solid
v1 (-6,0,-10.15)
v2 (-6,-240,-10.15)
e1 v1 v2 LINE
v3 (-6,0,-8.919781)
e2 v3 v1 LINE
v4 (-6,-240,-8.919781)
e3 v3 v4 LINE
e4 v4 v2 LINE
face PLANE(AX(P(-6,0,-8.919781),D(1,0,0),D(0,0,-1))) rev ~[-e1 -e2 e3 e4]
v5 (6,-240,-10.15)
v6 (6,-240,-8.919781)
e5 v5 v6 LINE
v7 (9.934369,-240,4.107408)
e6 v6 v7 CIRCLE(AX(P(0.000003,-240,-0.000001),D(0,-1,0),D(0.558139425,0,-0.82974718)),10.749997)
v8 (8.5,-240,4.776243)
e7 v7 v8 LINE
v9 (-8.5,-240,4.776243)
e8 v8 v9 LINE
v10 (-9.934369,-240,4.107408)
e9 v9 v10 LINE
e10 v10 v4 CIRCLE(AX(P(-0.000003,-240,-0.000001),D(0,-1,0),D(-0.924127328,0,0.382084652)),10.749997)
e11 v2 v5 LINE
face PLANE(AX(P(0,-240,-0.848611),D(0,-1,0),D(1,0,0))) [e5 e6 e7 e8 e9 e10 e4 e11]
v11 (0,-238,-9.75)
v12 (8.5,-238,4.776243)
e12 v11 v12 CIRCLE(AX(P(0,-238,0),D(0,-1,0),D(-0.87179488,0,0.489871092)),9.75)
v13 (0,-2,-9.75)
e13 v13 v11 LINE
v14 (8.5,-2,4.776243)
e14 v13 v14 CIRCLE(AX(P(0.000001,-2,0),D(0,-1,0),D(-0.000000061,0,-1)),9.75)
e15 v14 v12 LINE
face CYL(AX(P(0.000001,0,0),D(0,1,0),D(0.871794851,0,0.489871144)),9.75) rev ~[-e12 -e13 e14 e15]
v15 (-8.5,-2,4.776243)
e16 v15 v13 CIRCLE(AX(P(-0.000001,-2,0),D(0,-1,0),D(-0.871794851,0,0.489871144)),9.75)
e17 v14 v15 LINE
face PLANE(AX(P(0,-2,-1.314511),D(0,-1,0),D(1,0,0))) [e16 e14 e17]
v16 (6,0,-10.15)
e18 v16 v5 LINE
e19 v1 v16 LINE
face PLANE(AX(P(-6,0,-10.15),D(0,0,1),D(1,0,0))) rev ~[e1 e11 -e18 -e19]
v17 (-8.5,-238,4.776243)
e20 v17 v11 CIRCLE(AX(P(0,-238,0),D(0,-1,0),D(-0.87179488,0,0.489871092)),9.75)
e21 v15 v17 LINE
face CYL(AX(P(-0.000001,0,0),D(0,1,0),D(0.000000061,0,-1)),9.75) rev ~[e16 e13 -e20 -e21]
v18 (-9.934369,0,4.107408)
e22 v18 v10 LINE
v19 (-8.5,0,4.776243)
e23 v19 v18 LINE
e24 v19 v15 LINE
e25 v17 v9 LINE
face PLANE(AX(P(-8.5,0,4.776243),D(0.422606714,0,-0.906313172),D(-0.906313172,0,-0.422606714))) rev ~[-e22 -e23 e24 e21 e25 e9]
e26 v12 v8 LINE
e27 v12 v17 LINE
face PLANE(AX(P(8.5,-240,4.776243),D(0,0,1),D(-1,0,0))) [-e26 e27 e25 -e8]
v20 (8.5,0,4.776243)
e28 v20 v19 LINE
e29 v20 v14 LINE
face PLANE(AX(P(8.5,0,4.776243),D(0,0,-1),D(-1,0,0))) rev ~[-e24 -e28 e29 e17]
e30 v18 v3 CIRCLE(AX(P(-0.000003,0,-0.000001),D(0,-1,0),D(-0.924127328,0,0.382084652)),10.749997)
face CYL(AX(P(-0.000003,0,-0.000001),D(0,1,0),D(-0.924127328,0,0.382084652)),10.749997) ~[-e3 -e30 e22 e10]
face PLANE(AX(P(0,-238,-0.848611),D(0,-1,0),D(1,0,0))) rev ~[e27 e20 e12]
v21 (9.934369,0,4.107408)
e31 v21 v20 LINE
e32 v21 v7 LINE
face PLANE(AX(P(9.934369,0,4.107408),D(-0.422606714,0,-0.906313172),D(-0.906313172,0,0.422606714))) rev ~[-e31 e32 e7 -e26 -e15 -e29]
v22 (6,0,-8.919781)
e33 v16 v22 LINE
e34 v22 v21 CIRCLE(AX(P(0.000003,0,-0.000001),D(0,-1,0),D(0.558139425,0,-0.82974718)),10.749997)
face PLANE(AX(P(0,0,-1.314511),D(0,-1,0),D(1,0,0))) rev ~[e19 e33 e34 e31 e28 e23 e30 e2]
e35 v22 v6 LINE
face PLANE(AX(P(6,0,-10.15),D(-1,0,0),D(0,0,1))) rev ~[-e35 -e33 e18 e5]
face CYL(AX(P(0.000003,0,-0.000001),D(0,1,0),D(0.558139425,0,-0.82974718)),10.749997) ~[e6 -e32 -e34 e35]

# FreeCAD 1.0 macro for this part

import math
import FreeCAD as App
import Part
import Sketcher
Q = App.Units.Quantity

doc = App.newDocument("Part")
body = doc.addObject("PartDesign::Body", "Body")

# Sketch on XZ plane
sketch1 = body.newObject("Sketcher::SketchObject", "Sketch")
sketch1.AttachmentSupport = (doc.getObject("XZ_Plane"), [""])
sketch1.MapMode = "FlatFace"
sketch1.addGeometry(Part.ArcOfCircle(Part.Circle(App.Vector(0, 0, 0), App.Vector(0, 0, 1), 9.7), math.radians(151), math.radians(270)), False)
sketch1.addGeometry(Part.LineSegment(App.Vector(-8.5, 4.8, 0), App.Vector(-9.9, 4.1, 0)), False)
sketch1.addGeometry(Part.ArcOfCircle(Part.Circle(App.Vector(0, 0, 0), App.Vector(0, 0, 1), 10.7), math.radians(158), math.radians(236)), False)
sketch1.addGeometry(Part.LineSegment(App.Vector(-6, -8.9, 0), App.Vector(-6, -10.2, 0)), False)
sketch1.addGeometry(Part.LineSegment(App.Vector(-6, -10.2, 0), App.Vector(6, -10.2, 0)), False)
sketch1.addGeometry(Part.LineSegment(App.Vector(6, -10.2, 0), App.Vector(6, -8.9, 0)), False)
sketch1.addGeometry(Part.ArcOfCircle(Part.Circle(App.Vector(0, 0, 0), App.Vector(0, 0, 1), 10.7), math.radians(-56), math.radians(22)), False)
sketch1.addGeometry(Part.LineSegment(App.Vector(9.9, 4.1, 0), App.Vector(8.5, 4.8, 0)), False)
sketch1.addGeometry(Part.ArcOfCircle(Part.Circle(App.Vector(0, 0, 0), App.Vector(0, 0, 1), 9.7), math.radians(-90), math.radians(29)), False)
sketch1.addConstraint(Sketcher.Constraint("Coincident", 0, 1, 1, 1))
sketch1.addConstraint(Sketcher.Constraint("Coincident", 1, 2, 2, 1))
sketch1.addConstraint(Sketcher.Constraint("Coincident", 2, 2, 3, 1))
sketch1.addConstraint(Sketcher.Constraint("Coincident", 3, 2, 4, 1))
sketch1.addConstraint(Sketcher.Constraint("Coincident", 4, 2, 5, 1))
sketch1.addConstraint(Sketcher.Constraint("Coincident", 5, 2, 6, 1))
sketch1.addConstraint(Sketcher.Constraint("Coincident", 6, 2, 7, 1))
sketch1.addConstraint(Sketcher.Constraint("Coincident", 7, 2, 8, 2))
sketch1.addConstraint(Sketcher.Constraint("Tangent", 8, 1, 0, 2))
sketch1.addConstraint(Sketcher.Constraint("Vertical", 3))
sketch1.addConstraint(Sketcher.Constraint("Horizontal", 4))
sketch1.addConstraint(Sketcher.Constraint("Vertical", 5))
sketch1.addConstraint(Sketcher.Constraint("Coincident", 0, 3, -1, 1))
sketch1.addConstraint(Sketcher.Constraint("Coincident", 2, 3, -1, 1))
sketch1.addConstraint(Sketcher.Constraint("Coincident", 6, 3, -1, 1))
sketch1.addConstraint(Sketcher.Constraint("Equal", 2, 6))
sketch1.addConstraint(Sketcher.Constraint("Equal", 0, 8))
sketch1.addConstraint(Sketcher.Constraint("PointOnObject", 8, 1, -2))
sketch1.addConstraint(Sketcher.Constraint("Horizontal", 2, 2, 5, 2))
sketch1.addConstraint(Sketcher.Constraint("Horizontal", 1, 2, 6, 2))
sketch1.addConstraint(Sketcher.Constraint("Horizontal", 0, 1, 7, 2))
sketch1.addConstraint(Sketcher.Constraint("DistanceX", 4, 1, 4, 2, Q("12 mm")))
sketch1.addConstraint(Sketcher.Constraint("Radius", 0, Q("9.75 mm")))
sketch1.addConstraint(Sketcher.Constraint("DistanceX", 0, 1, -1, 1, Q("8.5 mm")))
sketch1.addConstraint(Sketcher.Constraint("DistanceY", 4, 2, 8, 1, Q("0.4 mm")))
sketch1.addConstraint(Sketcher.Constraint("Radius", 2, Q("10.749997 mm")))
sketch1.addConstraint(Sketcher.Constraint("Distance", 1, Q("1.582642 mm")))
pad1 = body.newObject("PartDesign::Pad", "Pad")
pad1.Profile = sketch1
pad1.Length = 240

# Sketch on XZ plane
sketch2 = body.newObject("Sketcher::SketchObject", "Sketch001")
sketch2.AttachmentSupport = (doc.getObject("XZ_Plane"), [""])
sketch2.MapMode = "FlatFace"
sketch2.addGeometry(Part.ArcOfCircle(Part.Circle(App.Vector(0, 0, 0), App.Vector(0, 0, 1), 10), math.radians(151), math.radians(270)), False)
sketch2.addGeometry(Part.ArcOfCircle(Part.Circle(App.Vector(0, 0, 0), App.Vector(0, 0, 1), 10), math.radians(-90), math.radians(29)), False)
sketch2.addGeometry(Part.LineSegment(App.Vector(8, 5, 0), App.Vector(-8, 5, 0)), False)
sketch2.addConstraint(Sketcher.Constraint("Tangent", 0, 2, 1, 1))
sketch2.addConstraint(Sketcher.Constraint("Coincident", 1, 2, 2, 1))
sketch2.addConstraint(Sketcher.Constraint("Coincident", 2, 2, 0, 1))
sketch2.addConstraint(Sketcher.Constraint("Horizontal", 2))
sketch2.addConstraint(Sketcher.Constraint("Coincident", 0, 3, -1, 1))
sketch2.addConstraint(Sketcher.Constraint("Equal", 0, 1))
sketch2.addConstraint(Sketcher.Constraint("PointOnObject", 0, 2, -2))
sketch2.addConstraint(Sketcher.Constraint("DistanceX", 2, 2, 2, 1, Q("17 mm")))
sketch2.addConstraint(Sketcher.Constraint("Radius", 0, Q("9.75 mm")))
pad2 = body.newObject("PartDesign::Pad", "Pad001")
pad2.Profile = sketch2
pad2.Length = 2

# Sketch on XZ plane
sketch3 = body.newObject("Sketcher::SketchObject", "Sketch002")
sketch3.AttachmentSupport = (doc.getObject("XZ_Plane"), [""])
sketch3.MapMode = "FlatFace"
sketch3.AttachmentOffset = App.Placement(App.Vector(0, 0, 240), App.Rotation())
sketch3.addGeometry(Part.LineSegment(App.Vector(8, 5, 0), App.Vector(-8, 5, 0)), False)
sketch3.addGeometry(Part.ArcOfCircle(Part.Circle(App.Vector(0, 0, 0), App.Vector(0, 0, 1), 10), math.radians(151), math.radians(389)), False)
sketch3.addConstraint(Sketcher.Constraint("Coincident", 0, 1, 1, 2))
sketch3.addConstraint(Sketcher.Constraint("Coincident", 1, 1, 0, 2))
sketch3.addConstraint(Sketcher.Constraint("Horizontal", 0))
sketch3.addConstraint(Sketcher.Constraint("Coincident", 1, 3, -1, 1))
sketch3.addConstraint(Sketcher.Constraint("DistanceX", 0, 2, 0, 1, Q("17 mm")))
sketch3.addConstraint(Sketcher.Constraint("Radius", 1, Q("9.75 mm")))
pad3 = body.newObject("PartDesign::Pad", "Pad002")
pad3.Profile = sketch3
pad3.Length = 2
pad3.Reversed = True

doc.recompute()
